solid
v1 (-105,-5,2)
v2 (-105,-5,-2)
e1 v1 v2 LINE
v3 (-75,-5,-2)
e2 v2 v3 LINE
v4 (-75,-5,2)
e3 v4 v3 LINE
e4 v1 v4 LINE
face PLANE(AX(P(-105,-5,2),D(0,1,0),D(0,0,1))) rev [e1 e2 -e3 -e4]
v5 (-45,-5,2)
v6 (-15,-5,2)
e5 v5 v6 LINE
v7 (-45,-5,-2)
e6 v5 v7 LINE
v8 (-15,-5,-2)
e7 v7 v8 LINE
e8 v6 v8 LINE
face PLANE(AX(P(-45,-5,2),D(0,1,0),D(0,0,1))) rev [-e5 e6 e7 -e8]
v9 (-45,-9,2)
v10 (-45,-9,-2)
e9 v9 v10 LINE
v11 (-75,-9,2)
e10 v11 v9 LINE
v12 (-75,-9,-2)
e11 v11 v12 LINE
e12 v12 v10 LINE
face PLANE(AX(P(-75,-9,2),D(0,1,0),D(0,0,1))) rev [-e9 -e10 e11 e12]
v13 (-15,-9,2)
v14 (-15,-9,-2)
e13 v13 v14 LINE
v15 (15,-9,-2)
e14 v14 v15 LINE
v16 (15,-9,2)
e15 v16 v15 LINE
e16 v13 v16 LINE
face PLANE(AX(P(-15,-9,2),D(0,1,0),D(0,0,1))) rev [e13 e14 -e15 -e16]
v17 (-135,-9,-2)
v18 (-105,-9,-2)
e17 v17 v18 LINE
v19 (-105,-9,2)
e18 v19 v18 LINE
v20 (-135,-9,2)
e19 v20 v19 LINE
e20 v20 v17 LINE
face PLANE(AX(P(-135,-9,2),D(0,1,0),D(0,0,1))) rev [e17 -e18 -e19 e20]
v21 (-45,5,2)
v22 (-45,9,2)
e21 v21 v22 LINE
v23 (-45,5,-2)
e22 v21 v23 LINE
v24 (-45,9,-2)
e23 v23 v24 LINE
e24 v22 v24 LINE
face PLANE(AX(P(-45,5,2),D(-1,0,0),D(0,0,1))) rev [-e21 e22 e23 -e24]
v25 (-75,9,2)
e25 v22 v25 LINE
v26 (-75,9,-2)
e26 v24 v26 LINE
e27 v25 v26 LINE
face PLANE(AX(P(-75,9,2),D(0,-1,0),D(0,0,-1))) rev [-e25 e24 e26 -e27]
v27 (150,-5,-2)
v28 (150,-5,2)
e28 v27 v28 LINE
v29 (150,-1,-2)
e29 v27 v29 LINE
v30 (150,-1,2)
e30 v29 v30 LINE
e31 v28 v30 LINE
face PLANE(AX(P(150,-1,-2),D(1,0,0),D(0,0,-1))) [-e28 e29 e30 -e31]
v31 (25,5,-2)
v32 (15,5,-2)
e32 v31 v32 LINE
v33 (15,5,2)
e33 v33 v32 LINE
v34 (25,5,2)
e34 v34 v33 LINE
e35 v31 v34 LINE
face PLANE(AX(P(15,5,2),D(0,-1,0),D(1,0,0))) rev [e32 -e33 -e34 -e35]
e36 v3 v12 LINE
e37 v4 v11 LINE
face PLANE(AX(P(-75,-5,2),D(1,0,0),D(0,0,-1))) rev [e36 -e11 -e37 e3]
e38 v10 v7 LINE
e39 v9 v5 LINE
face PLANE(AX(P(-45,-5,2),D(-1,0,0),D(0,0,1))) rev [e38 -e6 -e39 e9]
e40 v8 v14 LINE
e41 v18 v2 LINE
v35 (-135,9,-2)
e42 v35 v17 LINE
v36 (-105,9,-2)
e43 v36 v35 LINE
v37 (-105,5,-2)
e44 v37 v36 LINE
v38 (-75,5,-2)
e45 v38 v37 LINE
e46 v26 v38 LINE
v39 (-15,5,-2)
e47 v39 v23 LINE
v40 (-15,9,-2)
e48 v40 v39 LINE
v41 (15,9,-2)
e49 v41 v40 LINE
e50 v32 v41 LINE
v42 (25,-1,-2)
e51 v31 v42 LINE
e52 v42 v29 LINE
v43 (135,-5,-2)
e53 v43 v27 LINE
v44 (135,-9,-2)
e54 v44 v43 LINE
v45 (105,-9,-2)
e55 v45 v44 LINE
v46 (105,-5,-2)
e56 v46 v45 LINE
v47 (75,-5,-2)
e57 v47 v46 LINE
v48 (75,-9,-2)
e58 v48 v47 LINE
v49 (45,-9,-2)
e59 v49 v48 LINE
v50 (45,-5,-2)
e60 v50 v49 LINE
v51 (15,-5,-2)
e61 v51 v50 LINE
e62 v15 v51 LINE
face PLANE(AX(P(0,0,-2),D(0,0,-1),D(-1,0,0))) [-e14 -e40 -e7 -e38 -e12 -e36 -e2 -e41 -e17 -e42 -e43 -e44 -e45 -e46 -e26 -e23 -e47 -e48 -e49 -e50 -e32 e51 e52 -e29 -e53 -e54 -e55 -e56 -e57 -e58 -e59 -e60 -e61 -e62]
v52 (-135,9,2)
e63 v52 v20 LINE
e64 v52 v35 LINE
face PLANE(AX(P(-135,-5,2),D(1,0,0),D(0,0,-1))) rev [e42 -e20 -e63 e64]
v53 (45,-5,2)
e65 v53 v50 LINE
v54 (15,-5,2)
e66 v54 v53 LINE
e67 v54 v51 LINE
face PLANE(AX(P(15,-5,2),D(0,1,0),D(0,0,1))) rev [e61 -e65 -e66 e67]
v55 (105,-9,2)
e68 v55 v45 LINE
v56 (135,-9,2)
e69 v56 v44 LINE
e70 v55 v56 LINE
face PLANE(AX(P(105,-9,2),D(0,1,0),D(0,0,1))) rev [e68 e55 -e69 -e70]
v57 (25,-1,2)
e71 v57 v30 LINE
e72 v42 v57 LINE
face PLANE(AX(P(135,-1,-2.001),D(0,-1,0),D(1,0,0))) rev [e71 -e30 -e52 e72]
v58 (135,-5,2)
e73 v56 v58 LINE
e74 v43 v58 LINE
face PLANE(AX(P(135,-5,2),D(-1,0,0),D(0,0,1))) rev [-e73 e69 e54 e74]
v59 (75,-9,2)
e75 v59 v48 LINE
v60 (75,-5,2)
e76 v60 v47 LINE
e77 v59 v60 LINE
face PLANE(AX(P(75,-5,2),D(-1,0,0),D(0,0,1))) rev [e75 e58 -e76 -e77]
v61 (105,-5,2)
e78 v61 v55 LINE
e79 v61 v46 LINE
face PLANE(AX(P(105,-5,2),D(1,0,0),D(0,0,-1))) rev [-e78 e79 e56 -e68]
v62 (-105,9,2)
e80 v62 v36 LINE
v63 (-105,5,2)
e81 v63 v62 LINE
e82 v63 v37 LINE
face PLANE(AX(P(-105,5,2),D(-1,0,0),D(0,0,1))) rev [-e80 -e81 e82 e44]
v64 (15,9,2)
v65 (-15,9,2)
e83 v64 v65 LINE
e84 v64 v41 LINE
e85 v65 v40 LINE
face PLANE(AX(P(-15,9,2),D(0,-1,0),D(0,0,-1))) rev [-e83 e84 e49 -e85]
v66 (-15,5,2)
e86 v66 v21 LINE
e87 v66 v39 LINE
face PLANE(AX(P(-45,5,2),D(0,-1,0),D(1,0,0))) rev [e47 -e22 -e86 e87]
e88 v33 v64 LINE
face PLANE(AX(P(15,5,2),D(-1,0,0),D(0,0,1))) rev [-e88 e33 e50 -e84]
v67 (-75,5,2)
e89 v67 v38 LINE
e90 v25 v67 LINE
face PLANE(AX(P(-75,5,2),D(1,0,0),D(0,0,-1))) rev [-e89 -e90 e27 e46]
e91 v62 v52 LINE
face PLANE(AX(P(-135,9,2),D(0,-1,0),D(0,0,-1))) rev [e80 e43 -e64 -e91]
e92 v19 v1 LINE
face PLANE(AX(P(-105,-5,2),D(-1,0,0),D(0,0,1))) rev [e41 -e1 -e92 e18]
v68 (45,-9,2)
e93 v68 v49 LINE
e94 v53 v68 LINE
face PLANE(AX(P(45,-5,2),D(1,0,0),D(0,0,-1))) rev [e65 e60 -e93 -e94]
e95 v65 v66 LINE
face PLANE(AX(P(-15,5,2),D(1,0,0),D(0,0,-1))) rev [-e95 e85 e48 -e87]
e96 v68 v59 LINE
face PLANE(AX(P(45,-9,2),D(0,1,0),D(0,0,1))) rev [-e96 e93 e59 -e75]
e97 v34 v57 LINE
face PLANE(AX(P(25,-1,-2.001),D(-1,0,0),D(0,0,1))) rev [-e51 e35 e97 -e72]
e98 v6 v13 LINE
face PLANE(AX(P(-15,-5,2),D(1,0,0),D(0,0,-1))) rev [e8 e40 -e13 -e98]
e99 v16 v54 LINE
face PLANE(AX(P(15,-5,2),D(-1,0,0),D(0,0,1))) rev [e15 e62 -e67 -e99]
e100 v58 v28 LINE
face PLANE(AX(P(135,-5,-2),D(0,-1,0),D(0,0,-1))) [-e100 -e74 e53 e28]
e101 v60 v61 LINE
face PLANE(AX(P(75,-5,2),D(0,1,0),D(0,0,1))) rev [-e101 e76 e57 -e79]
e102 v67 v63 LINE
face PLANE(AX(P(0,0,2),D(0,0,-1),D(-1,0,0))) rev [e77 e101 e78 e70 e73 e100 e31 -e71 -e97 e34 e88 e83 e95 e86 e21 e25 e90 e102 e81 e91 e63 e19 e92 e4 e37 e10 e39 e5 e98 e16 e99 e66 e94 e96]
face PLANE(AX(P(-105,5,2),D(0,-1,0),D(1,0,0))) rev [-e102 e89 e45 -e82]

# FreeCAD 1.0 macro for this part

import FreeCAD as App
import Part
import Sketcher
from FreeCAD import Vector

doc = App.newDocument("Part")
params = doc.addObject("Spreadsheet::Sheet", "Params")
for row, (alias, value) in enumerate([
    ("sketch1_width", "30 mm"),
    ("sketch1_height", "4 mm"),
    ("sketch1_height2", "18 mm"),
    ("pad1_length", "4 mm"),
    ("sketch2_width", "110 mm"),
    ("sketch2_height", "10 mm"),
    ("sketch3_width", "15 mm"),
    ("sketch3_height", "4 mm"),
    ("pad2_length", "4 mm"),
], start=1):
    params.set(f"A{row}", alias)
    params.set(f"B{row}", "=" + value)
    params.setAlias(f"B{row}", alias)

body = doc.addObject("PartDesign::Body", "Body")

# Sketch on XY plane
sketch1 = body.newObject("Sketcher::SketchObject", "Sketch")
sketch1.AttachmentSupport = (doc.getObject("XY_Plane"), [""])
sketch1.MapMode = "FlatFace"
sketch1.addGeometry([
    Part.LineSegment(Vector(-105, -5, 0), Vector(-75, -5, 0)),  # 0
    Part.LineSegment(Vector(-75, -5, 0), Vector(-75, -9, 0)),  # 1
    Part.LineSegment(Vector(-75, -9, 0), Vector(-45, -9, 0)),  # 2
    Part.LineSegment(Vector(-45, -9, 0), Vector(-45, -5, 0)),  # 3
    Part.LineSegment(Vector(-45, -5, 0), Vector(-15, -5, 0)),  # 4
    Part.LineSegment(Vector(-15, -5, 0), Vector(-15, -9, 0)),  # 5
    Part.LineSegment(Vector(-15, -9, 0), Vector(15, -9, 0)),  # 6
    Part.LineSegment(Vector(15, -9, 0), Vector(15, -5, 0)),  # 7
    Part.LineSegment(Vector(15, -5, 0), Vector(45, -5, 0)),  # 8
    Part.LineSegment(Vector(45, -5, 0), Vector(45, -9, 0)),  # 9
    Part.LineSegment(Vector(45, -9, 0), Vector(75, -9, 0)),  # 10
    Part.LineSegment(Vector(75, -9, 0), Vector(75, -5, 0)),  # 11
    Part.LineSegment(Vector(75, -5, 0), Vector(105, -5, 0)),  # 12
    Part.LineSegment(Vector(105, -5, 0), Vector(105, -9, 0)),  # 13
    Part.LineSegment(Vector(105, -9, 0), Vector(135, -9, 0)),  # 14
    Part.LineSegment(Vector(135, -9, 0), Vector(135, 9, 0)),  # 15
    Part.LineSegment(Vector(135, 9, 0), Vector(105, 9, 0)),  # 16
    Part.LineSegment(Vector(105, 9, 0), Vector(105, 5, 0)),  # 17
    Part.LineSegment(Vector(105, 5, 0), Vector(75, 5, 0)),  # 18
    Part.LineSegment(Vector(75, 5, 0), Vector(75, 9, 0)),  # 19
    Part.LineSegment(Vector(75, 9, 0), Vector(45, 9, 0)),  # 20
    Part.LineSegment(Vector(45, 9, 0), Vector(45, 5, 0)),  # 21
    Part.LineSegment(Vector(45, 5, 0), Vector(15, 5, 0)),  # 22
    Part.LineSegment(Vector(15, 5, 0), Vector(15, 9, 0)),  # 23
    Part.LineSegment(Vector(15, 9, 0), Vector(-15, 9, 0)),  # 24
    Part.LineSegment(Vector(-15, 9, 0), Vector(-15, 5, 0)),  # 25
    Part.LineSegment(Vector(-15, 5, 0), Vector(-45, 5, 0)),  # 26
    Part.LineSegment(Vector(-45, 5, 0), Vector(-45, 9, 0)),  # 27
    Part.LineSegment(Vector(-45, 9, 0), Vector(-75, 9, 0)),  # 28
    Part.LineSegment(Vector(-75, 9, 0), Vector(-75, 5, 0)),  # 29
    Part.LineSegment(Vector(-75, 5, 0), Vector(-105, 5, 0)),  # 30
    Part.LineSegment(Vector(-105, 5, 0), Vector(-105, 9, 0)),  # 31
    Part.LineSegment(Vector(-105, 9, 0), Vector(-135, 9, 0)),  # 32
    Part.LineSegment(Vector(-135, 9, 0), Vector(-135, -9, 0)),  # 33
    Part.LineSegment(Vector(-135, -9, 0), Vector(-105, -9, 0)),  # 34
    Part.LineSegment(Vector(-105, -9, 0), Vector(-105, -5, 0)),  # 35
], False)
sketch1.addConstraint([
    Sketcher.Constraint("Coincident", 0, 2, 1, 1),
    Sketcher.Constraint("Coincident", 1, 2, 2, 1),
    Sketcher.Constraint("Coincident", 2, 2, 3, 1),
    Sketcher.Constraint("Coincident", 3, 2, 4, 1),
    Sketcher.Constraint("Coincident", 4, 2, 5, 1),
    Sketcher.Constraint("Coincident", 5, 2, 6, 1),
    Sketcher.Constraint("Coincident", 6, 2, 7, 1),
    Sketcher.Constraint("Coincident", 7, 2, 8, 1),
    Sketcher.Constraint("Coincident", 8, 2, 9, 1),
    Sketcher.Constraint("Coincident", 9, 2, 10, 1),
    Sketcher.Constraint("Coincident", 10, 2, 11, 1),
    Sketcher.Constraint("Coincident", 11, 2, 12, 1),
    Sketcher.Constraint("Coincident", 12, 2, 13, 1),
    Sketcher.Constraint("Coincident", 13, 2, 14, 1),
    Sketcher.Constraint("Coincident", 14, 2, 15, 1),
    Sketcher.Constraint("Coincident", 15, 2, 16, 1),
    Sketcher.Constraint("Coincident", 16, 2, 17, 1),
    Sketcher.Constraint("Coincident", 17, 2, 18, 1),
    Sketcher.Constraint("Coincident", 18, 2, 19, 1),
    Sketcher.Constraint("Coincident", 19, 2, 20, 1),
    Sketcher.Constraint("Coincident", 20, 2, 21, 1),
    Sketcher.Constraint("Coincident", 21, 2, 22, 1),
    Sketcher.Constraint("Coincident", 22, 2, 23, 1),
    Sketcher.Constraint("Coincident", 23, 2, 24, 1),
    Sketcher.Constraint("Coincident", 24, 2, 25, 1),
    Sketcher.Constraint("Coincident", 25, 2, 26, 1),
    Sketcher.Constraint("Coincident", 26, 2, 27, 1),
    Sketcher.Constraint("Coincident", 27, 2, 28, 1),
    Sketcher.Constraint("Coincident", 28, 2, 29, 1),
    Sketcher.Constraint("Coincident", 29, 2, 30, 1),
    Sketcher.Constraint("Coincident", 30, 2, 31, 1),
    Sketcher.Constraint("Coincident", 31, 2, 32, 1),
    Sketcher.Constraint("Coincident", 32, 2, 33, 1),
    Sketcher.Constraint("Coincident", 33, 2, 34, 1),
    Sketcher.Constraint("Coincident", 34, 2, 35, 1),
    Sketcher.Constraint("Coincident", 35, 2, 0, 1),
    Sketcher.Constraint("Horizontal", 0),
    Sketcher.Constraint("Vertical", 1),
    Sketcher.Constraint("Horizontal", 2),
    Sketcher.Constraint("Vertical", 3),
    Sketcher.Constraint("Horizontal", 4),
    Sketcher.Constraint("Vertical", 5),
    Sketcher.Constraint("Horizontal", 6),
    Sketcher.Constraint("Vertical", 7),
    Sketcher.Constraint("Horizontal", 8),
    Sketcher.Constraint("Vertical", 9),
    Sketcher.Constraint("Horizontal", 10),
    Sketcher.Constraint("Vertical", 11),
    Sketcher.Constraint("Horizontal", 12),
    Sketcher.Constraint("Vertical", 13),
    Sketcher.Constraint("Horizontal", 14),
    Sketcher.Constraint("Vertical", 15),
    Sketcher.Constraint("Horizontal", 16),
    Sketcher.Constraint("Vertical", 17),
    Sketcher.Constraint("Horizontal", 18),
    Sketcher.Constraint("Vertical", 19),
    Sketcher.Constraint("Horizontal", 20),
    Sketcher.Constraint("Vertical", 21),
    Sketcher.Constraint("Horizontal", 22),
    Sketcher.Constraint("Vertical", 23),
    Sketcher.Constraint("Horizontal", 24),
    Sketcher.Constraint("Vertical", 25),
    Sketcher.Constraint("Horizontal", 26),
    Sketcher.Constraint("Vertical", 27),
    Sketcher.Constraint("Horizontal", 28),
    Sketcher.Constraint("Vertical", 29),
    Sketcher.Constraint("Horizontal", 30),
    Sketcher.Constraint("Vertical", 31),
    Sketcher.Constraint("Horizontal", 32),
    Sketcher.Constraint("Vertical", 33),
    Sketcher.Constraint("Horizontal", 34),
    Sketcher.Constraint("Vertical", 35),
    Sketcher.Constraint("Symmetric", 0, 2, 18, 2, -1, 1),
    Sketcher.Constraint("Symmetric", 2, 2, 20, 2, -1, 1),
    Sketcher.Constraint("Symmetric", 4, 2, 22, 2, -1, 1),
    Sketcher.Constraint("Symmetric", 6, 2, 24, 2, -1, 1),
    Sketcher.Constraint("Symmetric", 8, 2, 26, 2, -1, 1),
    Sketcher.Constraint("Symmetric", 10, 2, 28, 2, -1, 1),
    Sketcher.Constraint("Symmetric", 12, 2, 30, 2, -1, 1),
    Sketcher.Constraint("Symmetric", 14, 2, 32, 2, -1, 1),
    Sketcher.Constraint("Symmetric", 16, 2, 34, 2, -1, 1),
    Sketcher.Constraint("Symmetric", 4, 2, 7, 2, -2),
    Sketcher.Constraint("Symmetric", 2, 2, 9, 2, -2),
    Sketcher.Constraint("Symmetric", 0, 2, 11, 2, -2),
    Sketcher.Constraint("Symmetric", 16, 2, 31, 2, -2),
    Sketcher.Constraint("Horizontal", 0, 2, 3, 2),
    Sketcher.Constraint("Horizontal", 2, 2, 5, 2),
    Sketcher.Constraint("Horizontal", 10, 2, 13, 2),
    Sketcher.Constraint("Equal", 0, 2),
    Sketcher.Constraint("Equal", 2, 4),
    Sketcher.Constraint("Equal", 4, 6),
    Sketcher.Constraint("Equal", 12, 14),
    Sketcher.Constraint("DistanceX", 0, 1, 0, 2, 30.0),
    Sketcher.Constraint("DistanceY", 1, 2, 1, 1, 4.0),
    Sketcher.Constraint("DistanceY", 15, 1, 15, 2, 18.0),
])
sketch1.setExpression("Constraints[92]", "Params.sketch1_width")
sketch1.setExpression("Constraints[93]", "Params.sketch1_height")
sketch1.setExpression("Constraints[94]", "Params.sketch1_height2")
pad1 = body.newObject("PartDesign::Pad", "Pad")
pad1.Profile = sketch1
pad1.setExpression("Length", "Params.pad1_length")
pad1.Midplane = True

# Sketch on XY plane
sketch2 = body.newObject("Sketcher::SketchObject", "Sketch001")
sketch2.AttachmentSupport = (doc.getObject("XY_Plane"), [""])
sketch2.MapMode = "FlatFace"
sketch2.AttachmentOffset = App.Placement(Vector(0, 0, 2), App.Rotation())
sketch2.addGeometry([
    Part.LineSegment(Vector(25, 9, 0), Vector(25, -1, 0)),
    Part.LineSegment(Vector(25, -1, 0), Vector(135, -1, 0)),
    Part.LineSegment(Vector(135, -1, 0), Vector(135, 9, 0)),
    Part.LineSegment(Vector(135, 9, 0), Vector(25, 9, 0)),
], False)
sketch2.addConstraint([
    Sketcher.Constraint("Coincident", 0, 2, 1, 1),
    Sketcher.Constraint("Coincident", 1, 2, 2, 1),
    Sketcher.Constraint("Coincident", 2, 2, 3, 1),
    Sketcher.Constraint("Coincident", 3, 2, 0, 1),
    Sketcher.Constraint("Vertical", 0),
    Sketcher.Constraint("Horizontal", 1),
    Sketcher.Constraint("Vertical", 2),
    Sketcher.Constraint("Horizontal", 3),
    Sketcher.Constraint("DistanceX", 1, 1, 1, 2, 110.0),
    Sketcher.Constraint("DistanceY", 0, 2, 0, 1, 10.0),
    Sketcher.Constraint("DistanceX", -1, 1, 0, 2, 25.0),
    Sketcher.Constraint("DistanceY", 0, 2, -1, 1, 1.0),
])
sketch2.setExpression("Constraints[8]", "Params.sketch2_width")
sketch2.setExpression("Constraints[9]", "Params.sketch2_height")
pocket1 = body.newObject("PartDesign::Pocket", "Pocket")
pocket1.Profile = sketch2
pocket1.Type = "UpToFirst"

# Sketch on XY plane
sketch3 = body.newObject("Sketcher::SketchObject", "Sketch002")
sketch3.AttachmentSupport = (doc.getObject("XY_Plane"), [""])
sketch3.MapMode = "FlatFace"
sketch3.AttachmentOffset = App.Placement(Vector(0, 0, 2), App.Rotation())
sketch3.addGeometry([
    Part.LineSegment(Vector(135, -1, 0), Vector(135, -5, 0)),
    Part.LineSegment(Vector(135, -5, 0), Vector(150, -5, 0)),
    Part.LineSegment(Vector(150, -5, 0), Vector(150, -1, 0)),
    Part.LineSegment(Vector(150, -1, 0), Vector(135, -1, 0)),
], False)
sketch3.addConstraint([
    Sketcher.Constraint("Coincident", 0, 2, 1, 1),
    Sketcher.Constraint("Coincident", 1, 2, 2, 1),
    Sketcher.Constraint("Coincident", 2, 2, 3, 1),
    Sketcher.Constraint("Coincident", 3, 2, 0, 1),
    Sketcher.Constraint("Vertical", 0),
    Sketcher.Constraint("Horizontal", 1),
    Sketcher.Constraint("Vertical", 2),
    Sketcher.Constraint("Horizontal", 3),
    Sketcher.Constraint("DistanceX", 1, 1, 1, 2, 15.0),
    Sketcher.Constraint("DistanceY", 0, 2, 0, 1, 4.0),
    Sketcher.Constraint("DistanceX", -1, 1, 0, 2, 135.0),
    Sketcher.Constraint("DistanceY", 0, 2, -1, 1, 5.0),
])
sketch3.setExpression("Constraints[8]", "Params.sketch3_width")
sketch3.setExpression("Constraints[9]", "Params.sketch3_height")
pad2 = body.newObject("PartDesign::Pad", "Pad001")
pad2.Profile = sketch3
pad2.setExpression("Length", "Params.pad2_length")
pad2.Reversed = True

doc.recompute()
